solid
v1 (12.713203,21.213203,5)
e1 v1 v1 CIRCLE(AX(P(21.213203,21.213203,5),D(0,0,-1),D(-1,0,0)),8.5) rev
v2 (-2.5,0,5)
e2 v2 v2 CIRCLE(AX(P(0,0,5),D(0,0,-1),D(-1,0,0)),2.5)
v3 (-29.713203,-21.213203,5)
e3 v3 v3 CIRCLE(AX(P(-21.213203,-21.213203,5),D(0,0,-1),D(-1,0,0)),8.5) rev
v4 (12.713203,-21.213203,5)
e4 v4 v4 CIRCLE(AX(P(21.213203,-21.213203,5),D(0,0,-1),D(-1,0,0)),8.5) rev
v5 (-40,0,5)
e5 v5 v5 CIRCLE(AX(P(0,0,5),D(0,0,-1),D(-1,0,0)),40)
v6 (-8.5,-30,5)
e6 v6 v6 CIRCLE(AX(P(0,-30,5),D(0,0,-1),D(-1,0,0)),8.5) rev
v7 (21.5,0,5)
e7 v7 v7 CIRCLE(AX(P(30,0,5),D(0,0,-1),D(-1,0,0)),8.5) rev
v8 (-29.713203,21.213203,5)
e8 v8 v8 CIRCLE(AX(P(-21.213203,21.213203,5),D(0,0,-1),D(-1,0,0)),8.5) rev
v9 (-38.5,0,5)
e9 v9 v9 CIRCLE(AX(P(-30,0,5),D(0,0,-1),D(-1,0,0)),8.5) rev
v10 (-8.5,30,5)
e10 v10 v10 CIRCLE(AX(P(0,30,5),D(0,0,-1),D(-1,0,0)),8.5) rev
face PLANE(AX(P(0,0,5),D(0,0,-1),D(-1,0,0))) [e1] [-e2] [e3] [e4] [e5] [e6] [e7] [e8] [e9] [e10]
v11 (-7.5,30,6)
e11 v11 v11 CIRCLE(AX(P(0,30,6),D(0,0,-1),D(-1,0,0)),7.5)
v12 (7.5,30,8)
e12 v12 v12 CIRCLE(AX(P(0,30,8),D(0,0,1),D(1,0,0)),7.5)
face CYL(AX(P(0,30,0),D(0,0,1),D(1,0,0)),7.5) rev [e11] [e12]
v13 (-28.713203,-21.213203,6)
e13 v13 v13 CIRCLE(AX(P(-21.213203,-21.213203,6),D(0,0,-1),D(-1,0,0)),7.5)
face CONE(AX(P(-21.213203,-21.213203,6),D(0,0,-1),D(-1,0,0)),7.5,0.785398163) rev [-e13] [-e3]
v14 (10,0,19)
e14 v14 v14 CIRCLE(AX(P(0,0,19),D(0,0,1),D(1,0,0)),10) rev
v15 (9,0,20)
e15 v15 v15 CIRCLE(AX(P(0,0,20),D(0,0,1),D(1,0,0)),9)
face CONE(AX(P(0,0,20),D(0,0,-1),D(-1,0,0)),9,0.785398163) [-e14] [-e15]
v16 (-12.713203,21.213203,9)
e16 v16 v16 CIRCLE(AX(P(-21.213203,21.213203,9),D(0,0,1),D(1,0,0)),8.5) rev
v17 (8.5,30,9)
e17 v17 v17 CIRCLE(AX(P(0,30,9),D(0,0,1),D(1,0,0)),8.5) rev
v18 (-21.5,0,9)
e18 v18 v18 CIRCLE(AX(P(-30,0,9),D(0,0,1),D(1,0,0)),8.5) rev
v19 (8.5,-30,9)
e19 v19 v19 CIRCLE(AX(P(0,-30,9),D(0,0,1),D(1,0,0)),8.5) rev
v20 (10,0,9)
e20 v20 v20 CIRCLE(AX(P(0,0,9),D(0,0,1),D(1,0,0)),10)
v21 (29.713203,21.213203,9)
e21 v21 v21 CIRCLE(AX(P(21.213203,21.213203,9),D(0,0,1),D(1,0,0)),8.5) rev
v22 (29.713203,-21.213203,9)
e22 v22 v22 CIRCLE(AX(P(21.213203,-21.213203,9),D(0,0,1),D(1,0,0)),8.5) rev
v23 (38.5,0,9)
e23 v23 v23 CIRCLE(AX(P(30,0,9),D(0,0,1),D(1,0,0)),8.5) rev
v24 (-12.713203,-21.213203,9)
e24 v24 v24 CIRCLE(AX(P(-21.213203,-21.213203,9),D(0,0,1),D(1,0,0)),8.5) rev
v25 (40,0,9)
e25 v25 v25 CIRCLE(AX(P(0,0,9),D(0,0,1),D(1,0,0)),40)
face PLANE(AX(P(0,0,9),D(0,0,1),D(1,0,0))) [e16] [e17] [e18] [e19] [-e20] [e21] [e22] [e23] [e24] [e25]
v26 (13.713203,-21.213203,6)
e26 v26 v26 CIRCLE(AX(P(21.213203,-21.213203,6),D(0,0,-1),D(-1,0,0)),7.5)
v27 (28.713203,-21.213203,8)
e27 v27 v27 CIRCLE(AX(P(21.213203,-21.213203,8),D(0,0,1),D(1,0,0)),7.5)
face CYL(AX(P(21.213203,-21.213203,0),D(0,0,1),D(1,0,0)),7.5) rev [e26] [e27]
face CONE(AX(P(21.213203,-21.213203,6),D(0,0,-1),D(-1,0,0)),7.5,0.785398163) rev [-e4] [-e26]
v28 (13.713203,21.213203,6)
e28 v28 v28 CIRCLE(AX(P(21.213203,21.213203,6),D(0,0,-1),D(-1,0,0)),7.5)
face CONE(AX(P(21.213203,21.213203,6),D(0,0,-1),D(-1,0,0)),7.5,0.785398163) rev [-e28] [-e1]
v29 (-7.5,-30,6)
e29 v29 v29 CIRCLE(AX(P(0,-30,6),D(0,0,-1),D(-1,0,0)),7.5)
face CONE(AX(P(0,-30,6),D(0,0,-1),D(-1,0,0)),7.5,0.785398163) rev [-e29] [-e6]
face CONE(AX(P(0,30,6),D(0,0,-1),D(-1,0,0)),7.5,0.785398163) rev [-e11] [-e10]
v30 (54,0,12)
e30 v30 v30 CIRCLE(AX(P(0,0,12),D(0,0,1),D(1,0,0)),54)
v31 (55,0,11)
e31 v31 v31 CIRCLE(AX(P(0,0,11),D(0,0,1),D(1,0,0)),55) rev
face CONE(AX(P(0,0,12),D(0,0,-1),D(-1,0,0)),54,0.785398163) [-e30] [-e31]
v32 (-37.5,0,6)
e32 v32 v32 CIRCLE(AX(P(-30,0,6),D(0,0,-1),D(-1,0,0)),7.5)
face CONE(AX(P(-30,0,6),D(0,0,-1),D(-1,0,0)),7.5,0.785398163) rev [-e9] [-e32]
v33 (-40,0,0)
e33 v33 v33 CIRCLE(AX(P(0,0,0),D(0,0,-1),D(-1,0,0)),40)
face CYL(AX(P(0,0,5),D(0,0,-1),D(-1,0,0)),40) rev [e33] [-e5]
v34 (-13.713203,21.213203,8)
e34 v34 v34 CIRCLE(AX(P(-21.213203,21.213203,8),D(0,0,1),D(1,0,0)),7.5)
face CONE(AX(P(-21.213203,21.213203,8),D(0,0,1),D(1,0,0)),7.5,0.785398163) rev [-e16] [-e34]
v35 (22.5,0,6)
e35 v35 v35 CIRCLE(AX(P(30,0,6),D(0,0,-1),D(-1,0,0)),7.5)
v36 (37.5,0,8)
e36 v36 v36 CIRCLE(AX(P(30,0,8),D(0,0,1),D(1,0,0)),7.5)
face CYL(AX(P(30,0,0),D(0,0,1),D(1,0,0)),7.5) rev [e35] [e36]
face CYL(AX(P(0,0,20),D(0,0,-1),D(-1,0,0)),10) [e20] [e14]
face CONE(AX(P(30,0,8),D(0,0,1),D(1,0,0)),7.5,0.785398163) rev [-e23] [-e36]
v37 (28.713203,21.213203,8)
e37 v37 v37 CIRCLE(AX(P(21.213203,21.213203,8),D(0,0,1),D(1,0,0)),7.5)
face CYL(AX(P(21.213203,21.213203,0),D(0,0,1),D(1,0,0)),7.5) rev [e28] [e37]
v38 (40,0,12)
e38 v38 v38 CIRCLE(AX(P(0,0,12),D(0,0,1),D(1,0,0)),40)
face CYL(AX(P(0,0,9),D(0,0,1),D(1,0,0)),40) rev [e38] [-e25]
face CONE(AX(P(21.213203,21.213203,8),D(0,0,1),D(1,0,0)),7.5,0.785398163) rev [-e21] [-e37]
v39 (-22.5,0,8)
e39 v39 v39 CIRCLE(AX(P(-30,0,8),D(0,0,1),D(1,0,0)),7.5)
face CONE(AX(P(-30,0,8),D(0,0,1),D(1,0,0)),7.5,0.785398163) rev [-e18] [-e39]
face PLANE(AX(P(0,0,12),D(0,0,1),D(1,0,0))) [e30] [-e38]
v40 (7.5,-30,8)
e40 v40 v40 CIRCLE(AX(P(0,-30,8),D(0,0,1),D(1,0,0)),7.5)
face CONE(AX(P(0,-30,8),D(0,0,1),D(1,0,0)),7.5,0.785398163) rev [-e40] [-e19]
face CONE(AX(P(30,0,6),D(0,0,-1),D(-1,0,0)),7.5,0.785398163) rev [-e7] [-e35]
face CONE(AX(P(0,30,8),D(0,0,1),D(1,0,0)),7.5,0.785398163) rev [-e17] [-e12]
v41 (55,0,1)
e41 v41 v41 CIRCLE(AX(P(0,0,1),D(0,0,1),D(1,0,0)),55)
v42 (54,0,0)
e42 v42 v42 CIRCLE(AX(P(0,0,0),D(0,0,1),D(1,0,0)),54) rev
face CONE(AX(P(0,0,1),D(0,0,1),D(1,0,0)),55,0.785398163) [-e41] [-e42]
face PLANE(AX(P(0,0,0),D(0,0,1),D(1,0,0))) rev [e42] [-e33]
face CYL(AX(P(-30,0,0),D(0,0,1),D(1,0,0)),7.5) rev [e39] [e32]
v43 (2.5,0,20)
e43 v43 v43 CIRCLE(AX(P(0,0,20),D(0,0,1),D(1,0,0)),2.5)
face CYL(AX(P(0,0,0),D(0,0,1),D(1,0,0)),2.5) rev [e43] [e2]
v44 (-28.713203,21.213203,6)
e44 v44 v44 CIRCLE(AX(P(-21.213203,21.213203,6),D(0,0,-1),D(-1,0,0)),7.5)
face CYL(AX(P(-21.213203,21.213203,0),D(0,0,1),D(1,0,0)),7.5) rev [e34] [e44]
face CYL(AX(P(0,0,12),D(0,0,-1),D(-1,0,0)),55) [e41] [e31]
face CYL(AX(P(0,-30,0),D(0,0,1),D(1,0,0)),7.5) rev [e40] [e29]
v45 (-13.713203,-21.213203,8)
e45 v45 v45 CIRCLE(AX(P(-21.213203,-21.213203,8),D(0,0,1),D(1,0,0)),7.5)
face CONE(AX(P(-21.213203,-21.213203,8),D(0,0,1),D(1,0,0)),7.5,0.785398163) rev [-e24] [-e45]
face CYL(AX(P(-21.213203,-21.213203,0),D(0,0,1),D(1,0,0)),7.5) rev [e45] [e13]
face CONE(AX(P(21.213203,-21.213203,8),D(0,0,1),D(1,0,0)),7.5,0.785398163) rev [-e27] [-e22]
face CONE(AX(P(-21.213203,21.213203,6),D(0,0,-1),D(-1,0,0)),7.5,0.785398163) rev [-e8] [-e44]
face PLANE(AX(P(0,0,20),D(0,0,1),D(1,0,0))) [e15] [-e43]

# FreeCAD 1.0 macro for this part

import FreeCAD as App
import Part
import Sketcher
Q = App.Units.Quantity


def edges_at(feature, points):
    """Names of the edges that pass closest to the given points."""
    edges = feature.Shape.Edges
    near = lambda p: min(range(len(edges)), key=lambda i: edges[i].distToShape(Part.Vertex(*p))[0])
    return sorted({f"Edge{near(p) + 1}" for p in points})

doc = App.newDocument("Part")
params = doc.addObject("Spreadsheet::Sheet", "Params")
for row, (alias, value) in enumerate([
    ("sketch1_diameter", "110 mm"),
    ("pad1_length", "12 mm"),
    ("sketch2_diameter", "80 mm"),
    ("pocket1_length", "5 mm"),
    ("sketch3_diameter", "80 mm"),
    ("pocket2_length", "3 mm"),
    ("sketch4_diameter", "20 mm"),
    ("pad2_length", "11 mm"),
    ("sketch5_diameter", "5 mm"),
    ("sketch6_diameter", "15 mm"),
    ("chamfer_size", "1 mm"),
], start=1):
    params.set(f"A{row}", alias)
    params.set(f"B{row}", "=" + value)
    params.setAlias(f"B{row}", alias)

body = doc.addObject("PartDesign::Body", "Body")

sketch1 = body.newObject("Sketcher::SketchObject", "Sketch")
sketch1.AttachmentSupport = (doc.getObject("XY_Plane"), [""])
sketch1.MapMode = "FlatFace"
sketch1.addGeometry(Part.Circle(App.Vector(0, 0, 0), App.Vector(0, 0, 1), 55), False)
sketch1.addConstraint([
    Sketcher.Constraint("Coincident", 0, 3, -1, 1),
    Sketcher.Constraint("Diameter", 0, Q("110 mm")),
])
sketch1.setExpression("Constraints[1]", "Params.sketch1_diameter")
pad1 = body.newObject("PartDesign::Pad", "Pad")
pad1.Profile = sketch1
pad1.setExpression("Length", "Params.pad1_length")

sketch2 = body.newObject("Sketcher::SketchObject", "Sketch001")
sketch2.AttachmentSupport = (doc.getObject("XY_Plane"), [""])
sketch2.MapMode = "FlatFace"
sketch2.addGeometry(Part.Circle(App.Vector(0, 0, 0), App.Vector(0, 0, 1), 40), False)
sketch2.addConstraint([
    Sketcher.Constraint("Coincident", 0, 3, -1, 1),
    Sketcher.Constraint("Diameter", 0, Q("80 mm")),
])
sketch2.setExpression("Constraints[1]", "Params.sketch2_diameter")
pocket1 = body.newObject("PartDesign::Pocket", "Pocket")
pocket1.Profile = sketch2
pocket1.setExpression("Length", "Params.pocket1_length")
pocket1.Reversed = True

sketch3 = body.newObject("Sketcher::SketchObject", "Sketch002")
sketch3.AttachmentSupport = (doc.getObject("XY_Plane"), [""])
sketch3.MapMode = "FlatFace"
sketch3.AttachmentOffset = App.Placement(App.Vector(0, 0, 9), App.Rotation())
sketch3.addGeometry(Part.Circle(App.Vector(0, 0, 0), App.Vector(0, 0, 1), 40), False)
sketch3.addConstraint([
    Sketcher.Constraint("Coincident", 0, 3, -1, 1),
    Sketcher.Constraint("Diameter", 0, Q("80 mm")),
])
sketch3.setExpression("Constraints[1]", "Params.sketch3_diameter")
pocket2 = body.newObject("PartDesign::Pocket", "Pocket001")
pocket2.Profile = sketch3
pocket2.setExpression("Length", "Params.pocket2_length")
pocket2.Reversed = True

sketch4 = body.newObject("Sketcher::SketchObject", "Sketch003")
sketch4.AttachmentSupport = (doc.getObject("XY_Plane"), [""])
sketch4.MapMode = "FlatFace"
sketch4.AttachmentOffset = App.Placement(App.Vector(0, 0, 9), App.Rotation())
sketch4.addGeometry(Part.Circle(App.Vector(0, 0, 0), App.Vector(0, 0, 1), 10), False)
sketch4.addConstraint([
    Sketcher.Constraint("Coincident", 0, 3, -1, 1),
    Sketcher.Constraint("Diameter", 0, Q("20 mm")),
])
sketch4.setExpression("Constraints[1]", "Params.sketch4_diameter")
pad2 = body.newObject("PartDesign::Pad", "Pad001")
pad2.Profile = sketch4
pad2.setExpression("Length", "Params.pad2_length")

sketch5 = body.newObject("Sketcher::SketchObject", "Sketch004")
sketch5.AttachmentSupport = (doc.getObject("XY_Plane"), [""])
sketch5.MapMode = "FlatFace"
sketch5.AttachmentOffset = App.Placement(App.Vector(0, 0, 20), App.Rotation())
sketch5.addGeometry(Part.Circle(App.Vector(0, 0, 0), App.Vector(0, 0, 1), 2.5), False)
sketch5.addConstraint([
    Sketcher.Constraint("Coincident", 0, 3, -1, 1),
    Sketcher.Constraint("Diameter", 0, Q("5 mm")),
])
sketch5.setExpression("Constraints[1]", "Params.sketch5_diameter")
pocket3 = body.newObject("PartDesign::Pocket", "Pocket002")
pocket3.Profile = sketch5
pocket3.Type = "ThroughAll"

sketch6 = body.newObject("Sketcher::SketchObject", "Sketch005")
sketch6.AttachmentSupport = (doc.getObject("XY_Plane"), [""])
sketch6.MapMode = "FlatFace"
sketch6.AttachmentOffset = App.Placement(App.Vector(0, 0, 9), App.Rotation())
sketch6.addGeometry([
    Part.Circle(App.Vector(0, 30, 0), App.Vector(0, 0, 1), 8),
    Part.Circle(App.Vector(21, 21, 0), App.Vector(0, 0, 1), 8),
    Part.Circle(App.Vector(30, 0, 0), App.Vector(0, 0, 1), 8),
    Part.Circle(App.Vector(21, -21, 0), App.Vector(0, 0, 1), 8),
    Part.Circle(App.Vector(0, -30, 0), App.Vector(0, 0, 1), 8),
    Part.Circle(App.Vector(-21, -21, 0), App.Vector(0, 0, 1), 8),
    Part.Circle(App.Vector(-30, 0, 0), App.Vector(0, 0, 1), 8),
    Part.Circle(App.Vector(-21, 21, 0), App.Vector(0, 0, 1), 8),
], False)
sketch6.addConstraint([
    Sketcher.Constraint("Equal", 0, 1),
    Sketcher.Constraint("Equal", 1, 2),
    Sketcher.Constraint("Equal", 2, 3),
    Sketcher.Constraint("Equal", 3, 4),
    Sketcher.Constraint("Equal", 4, 5),
    Sketcher.Constraint("Equal", 5, 6),
    Sketcher.Constraint("Equal", 6, 7),
    Sketcher.Constraint("Symmetric", 0, 3, 4, 3, -1, 1),
    Sketcher.Constraint("Symmetric", 1, 3, 5, 3, -1, 1),
    Sketcher.Constraint("Symmetric", 2, 3, 6, 3, -1, 1),
    Sketcher.Constraint("Symmetric", 3, 3, 7, 3, -1, 1),
    Sketcher.Constraint("Symmetric", 3, 3, 5, 3, -2),
    Sketcher.Constraint("PointOnObject", 0, 3, -2),
    Sketcher.Constraint("PointOnObject", 2, 3, -1),
    Sketcher.Constraint("Diameter", 0, Q("15 mm")),
    Sketcher.Constraint("DistanceY", -1, 1, 0, 3, Q("30 mm")),
    Sketcher.Constraint("DistanceX", -1, 1, 2, 3, Q("30 mm")),
    Sketcher.Constraint("DistanceX", -1, 1, 1, 3, Q("21.213203 mm")),
    Sketcher.Constraint("DistanceY", -1, 1, 1, 3, Q("21.213203 mm")),
])
sketch6.setExpression("Constraints[14]", "Params.sketch6_diameter")
pocket4 = body.newObject("PartDesign::Pocket", "Pocket003")
pocket4.Profile = sketch6
pocket4.Type = "ThroughAll"
doc.recompute()

chamfer = body.newObject("PartDesign::Chamfer", "Chamfer")
chamfer.Base = (pocket4, edges_at(pocket4, [
    (-10, 0, 20),
    (-55, 0, 0),
    (-28.713, 21.213, 5),
    (-28.713, 21.213, 9),
    (-37.5, 0, 5),
    (-37.5, 0, 9),
    (-28.713, -21.213, 5),
    (-28.713, -21.213, 9),
    (-7.5, -30, 5),
    (-7.5, -30, 9),
    (13.713, -21.213, 5),
    (13.713, -21.213, 9),
    (22.5, 0, 5),
    (22.5, 0, 9),
    (13.713, 21.213, 5),
    (13.713, 21.213, 9),
    (-7.5, 30, 5),
    (-7.5, 30, 9),
    (-55, 0, 12),
]))
chamfer.setExpression("Size", "Params.chamfer_size")

doc.recompute()
